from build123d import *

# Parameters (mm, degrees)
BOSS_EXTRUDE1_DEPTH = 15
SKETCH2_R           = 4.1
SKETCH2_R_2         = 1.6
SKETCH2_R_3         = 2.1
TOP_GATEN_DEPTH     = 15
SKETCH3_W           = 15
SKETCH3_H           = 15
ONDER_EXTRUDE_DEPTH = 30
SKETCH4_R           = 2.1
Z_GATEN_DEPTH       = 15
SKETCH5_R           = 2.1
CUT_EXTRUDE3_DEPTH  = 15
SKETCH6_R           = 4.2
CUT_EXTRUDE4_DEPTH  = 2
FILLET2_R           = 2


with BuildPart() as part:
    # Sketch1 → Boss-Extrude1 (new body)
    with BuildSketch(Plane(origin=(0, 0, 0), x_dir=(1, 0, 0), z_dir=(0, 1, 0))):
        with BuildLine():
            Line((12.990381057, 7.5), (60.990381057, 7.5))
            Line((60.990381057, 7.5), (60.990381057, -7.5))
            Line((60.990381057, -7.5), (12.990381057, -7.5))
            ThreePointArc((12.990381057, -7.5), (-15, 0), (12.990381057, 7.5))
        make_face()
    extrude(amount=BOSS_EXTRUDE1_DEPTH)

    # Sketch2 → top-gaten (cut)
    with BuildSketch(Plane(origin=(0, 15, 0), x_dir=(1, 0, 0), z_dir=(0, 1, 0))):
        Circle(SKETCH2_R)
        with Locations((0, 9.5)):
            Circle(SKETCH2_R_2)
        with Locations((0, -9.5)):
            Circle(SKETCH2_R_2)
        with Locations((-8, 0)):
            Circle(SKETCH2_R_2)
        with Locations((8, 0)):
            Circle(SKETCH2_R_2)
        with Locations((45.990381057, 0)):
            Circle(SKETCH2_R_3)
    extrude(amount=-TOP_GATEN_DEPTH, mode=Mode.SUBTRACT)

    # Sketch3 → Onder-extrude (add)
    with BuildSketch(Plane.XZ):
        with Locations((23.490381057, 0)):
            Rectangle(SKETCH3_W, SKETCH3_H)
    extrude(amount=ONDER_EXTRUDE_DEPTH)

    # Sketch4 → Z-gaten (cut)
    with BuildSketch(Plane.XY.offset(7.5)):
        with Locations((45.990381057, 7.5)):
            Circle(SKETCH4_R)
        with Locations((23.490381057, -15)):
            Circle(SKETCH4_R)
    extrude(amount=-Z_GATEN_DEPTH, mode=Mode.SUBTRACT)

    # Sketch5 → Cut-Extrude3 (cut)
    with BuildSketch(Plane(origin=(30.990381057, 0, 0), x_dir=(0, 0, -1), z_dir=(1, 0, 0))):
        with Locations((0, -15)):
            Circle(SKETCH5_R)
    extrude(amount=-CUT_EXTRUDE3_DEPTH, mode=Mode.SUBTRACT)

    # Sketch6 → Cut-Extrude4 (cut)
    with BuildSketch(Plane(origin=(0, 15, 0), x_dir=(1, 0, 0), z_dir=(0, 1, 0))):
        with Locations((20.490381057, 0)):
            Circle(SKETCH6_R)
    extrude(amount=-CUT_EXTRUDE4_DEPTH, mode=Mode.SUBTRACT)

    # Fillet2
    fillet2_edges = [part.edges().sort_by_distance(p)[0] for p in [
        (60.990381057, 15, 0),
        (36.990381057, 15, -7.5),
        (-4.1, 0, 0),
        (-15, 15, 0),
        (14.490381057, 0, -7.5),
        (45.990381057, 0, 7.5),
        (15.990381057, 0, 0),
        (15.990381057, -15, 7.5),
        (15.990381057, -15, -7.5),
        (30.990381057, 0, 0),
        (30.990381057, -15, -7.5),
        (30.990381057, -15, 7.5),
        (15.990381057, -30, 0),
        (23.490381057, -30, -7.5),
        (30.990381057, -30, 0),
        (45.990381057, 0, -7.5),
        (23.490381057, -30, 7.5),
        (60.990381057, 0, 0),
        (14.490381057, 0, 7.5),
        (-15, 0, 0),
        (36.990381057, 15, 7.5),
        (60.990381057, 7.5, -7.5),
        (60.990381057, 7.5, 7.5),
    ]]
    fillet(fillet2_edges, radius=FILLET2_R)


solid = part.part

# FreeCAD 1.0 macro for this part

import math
import FreeCAD as App
import Part
import Sketcher

V = App.Vector


def edges_at(feature, points):
    """Names of the edges that pass closest to the given points."""
    edges = feature.Shape.Edges
    near = lambda p: min(range(len(edges)), key=lambda i: edges[i].distToShape(Part.Vertex(*p))[0])
    return sorted({f"Edge{near(p) + 1}" for p in points})


def add_polygon(sketch, points):
    """Adds a closed chain of lines whose ends are joined by coincident constraints."""
    first, n = sketch.GeometryCount, len(points)
    for a, b in zip(points, points[1:] + points[:1]):
        sketch.addGeometry(Part.LineSegment(App.Vector(*a, 0), App.Vector(*b, 0)), False)
    for i in range(n):
        sketch.addConstraint(Sketcher.Constraint("Coincident", first + i, 2, first + (i + 1) % n, 1))

doc = App.newDocument("Part")
params = doc.addObject("Spreadsheet::Sheet", "Params")
for row, (alias, value) in enumerate([
    ("sketch1_radius", "15 mm"),
    ("sketch1_width", "48 mm"),
    ("sketch1_height", "15 mm"),
    ("pad1_length", "15 mm"),
    ("sketch2_diameter", "8.2 mm"),
    ("sketch2_diameter2", "3.2 mm"),
    ("sketch2_diameter3", "4.2 mm"),
    ("pocket1_length", "15 mm"),
    ("sketch3_width", "15 mm"),
    ("pad2_length", "30 mm"),
    ("sketch4_diameter", "4.2 mm"),
    ("pocket2_length", "15 mm"),
    ("sketch5_diameter", "4.2 mm"),
    ("pocket3_length", "15 mm"),
    ("sketch6_diameter", "8.4 mm"),
    ("pocket4_length", "2 mm"),
    ("fillet_radius", "2 mm"),
], start=1):
    params.set(f"A{row}", alias)
    params.set(f"B{row}", "=" + value)
    params.setAlias(f"B{row}", alias)

body = doc.addObject("PartDesign::Body", "Body")

# Sketch on XZ plane
sketch1 = body.newObject("Sketcher::SketchObject", "Sketch")
sketch1.AttachmentSupport = (doc.getObject("XZ_Plane"), [""])
sketch1.MapMode = "FlatFace"
sketch1.addGeometry(Part.LineSegment(V(61, -8, 0), V(13, -8, 0)), False)
sketch1.addGeometry(Part.ArcOfCircle(Part.Circle(V(0, 0, 0), V(0, 0, 1), 15), math.radians(30), math.radians(330)), False)
sketch1.addGeometry(Part.LineSegment(V(13, 8, 0), V(61, 8, 0)), False)
sketch1.addGeometry(Part.LineSegment(V(61, 8, 0), V(61, -8, 0)), False)
sketch1.addConstraint(Sketcher.Constraint("Coincident", 0, 2, 1, 2))
sketch1.addConstraint(Sketcher.Constraint("Coincident", 1, 1, 2, 1))
sketch1.addConstraint(Sketcher.Constraint("Coincident", 2, 2, 3, 1))
sketch1.addConstraint(Sketcher.Constraint("Coincident", 3, 2, 0, 1))
sketch1.addConstraint(Sketcher.Constraint("Horizontal", 0))
sketch1.addConstraint(Sketcher.Constraint("Horizontal", 2))
sketch1.addConstraint(Sketcher.Constraint("Vertical", 3))
sketch1.addConstraint(Sketcher.Constraint("Coincident", 1, 3, -1, 1))
sketch1.addConstraint(Sketcher.Constraint("Vertical", 0, 2, 1, 1))
sketch1.addConstraint(Sketcher.Constraint("Radius", 1, 15.0))
sketch1.addConstraint(Sketcher.Constraint("DistanceX", 0, 2, 0, 1, 48.0))
sketch1.addConstraint(Sketcher.Constraint("DistanceY", 3, 2, 3, 1, 15.0))
sketch1.setExpression("Constraints[9]", "Params.sketch1_radius")
sketch1.setExpression("Constraints[10]", "Params.sketch1_width")
sketch1.setExpression("Constraints[11]", "Params.sketch1_height")
pad1 = body.newObject("PartDesign::Pad", "Pad")
pad1.Profile = sketch1
pad1.setExpression("Length", "Params.pad1_length")
pad1.Reversed = True

# Sketch on XZ plane
sketch2 = body.newObject("Sketcher::SketchObject", "Sketch001")
sketch2.AttachmentSupport = (doc.getObject("XZ_Plane"), [""])
sketch2.MapMode = "FlatFace"
sketch2.AttachmentOffset = App.Placement(V(0, 0, -15), App.Rotation())
sketch2.addGeometry(Part.Circle(V(0, 0, 0), V(0, 0, 1), 4.1), False)
sketch2.addGeometry(Part.Circle(V(0, -9.5, 0), V(0, 0, 1), 1.6), False)
sketch2.addGeometry(Part.Circle(V(0, 9.5, 0), V(0, 0, 1), 1.6), False)
sketch2.addGeometry(Part.Circle(V(-8, 0, 0), V(0, 0, 1), 1.6), False)
sketch2.addGeometry(Part.Circle(V(8, 0, 0), V(0, 0, 1), 1.6), False)
sketch2.addGeometry(Part.Circle(V(46, 0, 0), V(0, 0, 1), 2.1), False)
sketch2.addConstraint(Sketcher.Constraint("Coincident", 0, 3, -1, 1))
sketch2.addConstraint(Sketcher.Constraint("Equal", 1, 2))
sketch2.addConstraint(Sketcher.Constraint("Equal", 2, 3))
sketch2.addConstraint(Sketcher.Constraint("Equal", 3, 4))
sketch2.addConstraint(Sketcher.Constraint("Symmetric", 1, 3, 2, 3, -1, 1))
sketch2.addConstraint(Sketcher.Constraint("Symmetric", 3, 3, 4, 3, -1, 1))
sketch2.addConstraint(Sketcher.Constraint("PointOnObject", 1, 3, -2))
sketch2.addConstraint(Sketcher.Constraint("PointOnObject", 3, 3, -1))
sketch2.addConstraint(Sketcher.Constraint("PointOnObject", 5, 3, -1))
sketch2.addConstraint(Sketcher.Constraint("Diameter", 0, 8.2))
sketch2.addConstraint(Sketcher.Constraint("Diameter", 1, 3.2))
sketch2.addConstraint(Sketcher.Constraint("Diameter", 5, 4.2))
sketch2.addConstraint(Sketcher.Constraint("DistanceX", 3, 3, -1, 1, 8.0))
sketch2.addConstraint(Sketcher.Constraint("DistanceY", 1, 3, 2, 3, 19.0))
sketch2.addConstraint(Sketcher.Constraint("DistanceX", -1, 1, 5, 3, 45.990381))
sketch2.setExpression("Constraints[9]", "Params.sketch2_diameter")
sketch2.setExpression("Constraints[10]", "Params.sketch2_diameter2")
sketch2.setExpression("Constraints[11]", "Params.sketch2_diameter3")
pocket1 = body.newObject("PartDesign::Pocket", "Pocket")
pocket1.Profile = sketch2
pocket1.setExpression("Length", "Params.pocket1_length")
pocket1.Reversed = True

# Sketch on XZ plane
sketch3 = body.newObject("Sketcher::SketchObject", "Sketch002")
sketch3.AttachmentSupport = (doc.getObject("XZ_Plane"), [""])
sketch3.MapMode = "FlatFace"
add_polygon(sketch3, [(16, 8), (16, -8), (31, -8), (31, 8)])  # lines 0-3
sketch3.addConstraint(Sketcher.Constraint("Vertical", 0))
sketch3.addConstraint(Sketcher.Constraint("Horizontal", 1))
sketch3.addConstraint(Sketcher.Constraint("Vertical", 2))
sketch3.addConstraint(Sketcher.Constraint("Horizontal", 3))
sketch3.addConstraint(Sketcher.Constraint("Equal", 3, 0))
sketch3.addConstraint(Sketcher.Constraint("DistanceX", 1, 1, 1, 2, 15.0))
sketch3.addConstraint(Sketcher.Constraint("DistanceY", 0, 2, -1, 1, 7.5))
sketch3.addConstraint(Sketcher.Constraint("DistanceX", -1, 1, 0, 2, 15.990381))
sketch3.setExpression("Constraints[9]", "Params.sketch3_width")
pad2 = body.newObject("PartDesign::Pad", "Pad001")
pad2.Profile = sketch3
pad2.setExpression("Length", "Params.pad2_length")

# Sketch on XY plane
sketch4 = body.newObject("Sketcher::SketchObject", "Sketch003")
sketch4.AttachmentSupport = (doc.getObject("XY_Plane"), [""])
sketch4.MapMode = "FlatFace"
sketch4.AttachmentOffset = App.Placement(V(0, 0, 7.5), App.Rotation())
sketch4.addGeometry(Part.Circle(V(46, 7.5, 0), V(0, 0, 1), 2.1), False)
sketch4.addGeometry(Part.Circle(V(23.5, -15, 0), V(0, 0, 1), 2.1), False)
sketch4.addConstraint(Sketcher.Constraint("Equal", 0, 1))
sketch4.addConstraint(Sketcher.Constraint("Diameter", 0, 4.2))
sketch4.addConstraint(Sketcher.Constraint("DistanceY", 1, 3, -1, 1, 15.0))
sketch4.addConstraint(Sketcher.Constraint("DistanceY", -1, 1, 0, 3, 7.5))
sketch4.addConstraint(Sketcher.Constraint("DistanceX", 1, 3, 0, 3, 22.5))
sketch4.addConstraint(Sketcher.Constraint("DistanceX", -1, 1, 0, 3, 45.990381))
sketch4.setExpression("Constraints[1]", "Params.sketch4_diameter")
pocket2 = body.newObject("PartDesign::Pocket", "Pocket001")
pocket2.Profile = sketch4
pocket2.setExpression("Length", "Params.pocket2_length")

# Sketch on YZ plane
sketch5 = body.newObject("Sketcher::SketchObject", "Sketch004")
sketch5.AttachmentSupport = (doc.getObject("YZ_Plane"), [""])
sketch5.MapMode = "FlatFace"
sketch5.AttachmentOffset = App.Placement(V(0, 0, 30.990381), App.Rotation())
sketch5.addGeometry(Part.Circle(V(-15, 0, 0), V(0, 0, 1), 2.1), False)
sketch5.addConstraint(Sketcher.Constraint("PointOnObject", 0, 3, -1))
sketch5.addConstraint(Sketcher.Constraint("Diameter", 0, 4.2))
sketch5.addConstraint(Sketcher.Constraint("DistanceX", 0, 3, -1, 1, 15.0))
sketch5.setExpression("Constraints[1]", "Params.sketch5_diameter")
pocket3 = body.newObject("PartDesign::Pocket", "Pocket002")
pocket3.Profile = sketch5
pocket3.setExpression("Length", "Params.pocket3_length")

# Sketch on XZ plane
sketch6 = body.newObject("Sketcher::SketchObject", "Sketch005")
sketch6.AttachmentSupport = (doc.getObject("XZ_Plane"), [""])
sketch6.MapMode = "FlatFace"
sketch6.AttachmentOffset = App.Placement(V(0, 0, -15), App.Rotation())
sketch6.addGeometry(Part.Circle(V(20.5, 0, 0), V(0, 0, 1), 4.2), False)
sketch6.addConstraint(Sketcher.Constraint("PointOnObject", 0, 3, -1))
sketch6.addConstraint(Sketcher.Constraint("Diameter", 0, 8.4))
sketch6.addConstraint(Sketcher.Constraint("DistanceX", -1, 1, 0, 3, 20.490381))
sketch6.setExpression("Constraints[1]", "Params.sketch6_diameter")
pocket4 = body.newObject("PartDesign::Pocket", "Pocket003")
pocket4.Profile = sketch6
pocket4.setExpression("Length", "Params.pocket4_length")
pocket4.Reversed = True
doc.recompute()

fillet = body.newObject("PartDesign::Fillet", "Fillet")
fillet.Base = (pocket4, edges_at(pocket4, [
    (60.99, 15, 0),
    (36.99, 15, -7.5),
    (-4.1, 0, 0),
    (-15, 15, 0),
    (14.49, 0, -7.5),
    (45.99, 0, 7.5),
    (15.99, 0, 0),
    (15.99, -15, 7.5),
    (15.99, -15, -7.5),
    (30.99, 0, 0),
    (30.99, -15, -7.5),
    (30.99, -15, 7.5),
    (15.99, -30, 0),
    (23.49, -30, -7.5),
    (30.99, -30, 0),
    (45.99, 0, -7.5),
    (23.49, -30, 7.5),
    (60.99, 0, 0),
    (14.49, 0, 7.5),
    (-15, 0, 0),
    (36.99, 15, 7.5),
    (60.99, 7.5, -7.5),
    (60.99, 7.5, 7.5),
]))
fillet.setExpression("Radius", "Params.fillet_radius")

doc.recompute()
